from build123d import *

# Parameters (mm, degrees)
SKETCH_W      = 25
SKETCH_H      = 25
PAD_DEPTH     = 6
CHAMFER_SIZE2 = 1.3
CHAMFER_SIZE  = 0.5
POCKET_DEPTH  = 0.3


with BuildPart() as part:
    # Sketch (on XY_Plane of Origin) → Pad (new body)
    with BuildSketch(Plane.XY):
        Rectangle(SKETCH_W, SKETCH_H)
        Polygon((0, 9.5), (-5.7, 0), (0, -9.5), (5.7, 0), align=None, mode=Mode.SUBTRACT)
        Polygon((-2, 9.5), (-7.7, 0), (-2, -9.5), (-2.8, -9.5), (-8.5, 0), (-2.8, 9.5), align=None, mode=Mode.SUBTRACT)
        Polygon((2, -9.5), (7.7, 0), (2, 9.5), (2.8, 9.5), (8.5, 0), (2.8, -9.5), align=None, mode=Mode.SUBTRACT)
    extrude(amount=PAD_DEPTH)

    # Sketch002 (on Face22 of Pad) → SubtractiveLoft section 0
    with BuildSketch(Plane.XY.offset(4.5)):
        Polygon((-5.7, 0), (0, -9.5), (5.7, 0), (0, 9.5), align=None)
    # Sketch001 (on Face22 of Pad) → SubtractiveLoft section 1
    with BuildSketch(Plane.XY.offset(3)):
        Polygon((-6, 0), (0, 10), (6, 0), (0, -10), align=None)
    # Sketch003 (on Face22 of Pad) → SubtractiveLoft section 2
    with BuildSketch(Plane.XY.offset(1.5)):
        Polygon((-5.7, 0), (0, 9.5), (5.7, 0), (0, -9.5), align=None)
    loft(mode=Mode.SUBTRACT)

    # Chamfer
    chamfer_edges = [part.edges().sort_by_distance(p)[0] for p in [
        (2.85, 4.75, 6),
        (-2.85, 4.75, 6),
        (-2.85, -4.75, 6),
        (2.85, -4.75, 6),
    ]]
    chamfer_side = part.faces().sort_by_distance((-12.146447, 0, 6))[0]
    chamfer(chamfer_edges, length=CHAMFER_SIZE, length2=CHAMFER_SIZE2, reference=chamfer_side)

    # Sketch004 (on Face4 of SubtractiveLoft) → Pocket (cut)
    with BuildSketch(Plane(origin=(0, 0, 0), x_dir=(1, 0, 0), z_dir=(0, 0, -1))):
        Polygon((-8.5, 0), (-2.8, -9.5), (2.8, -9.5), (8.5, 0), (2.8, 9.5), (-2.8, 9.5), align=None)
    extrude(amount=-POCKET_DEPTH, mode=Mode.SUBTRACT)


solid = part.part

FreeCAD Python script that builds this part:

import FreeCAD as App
import Part
import Sketcher
from FreeCAD import Vector


def edges_at(feature, points):
    """Names of the edges that pass closest to the given points."""
    edges = feature.Shape.Edges
    near = lambda p: min(range(len(edges)), key=lambda i: edges[i].distToShape(Part.Vertex(*p))[0])
    return sorted({f"Edge{near(p) + 1}" for p in points})


def add_polygon(sketch, points):
    """Adds a closed chain of lines whose ends are joined by coincident constraints."""
    first, n = sketch.GeometryCount, len(points)
    for a, b in zip(points, points[1:] + points[:1]):
        sketch.addGeometry(Part.LineSegment(App.Vector(*a, 0), App.Vector(*b, 0)), False)
    for i in range(n):
        sketch.addConstraint(Sketcher.Constraint("Coincident", first + i, 2, first + (i + 1) % n, 1))

doc = App.newDocument("Part")
body = doc.addObject("PartDesign::Body", "Body")

# Sketch on XY plane
sketch1 = body.newObject("Sketcher::SketchObject", "Sketch")
sketch1.AttachmentSupport = (doc.getObject("XY_Plane"), [""])
sketch1.MapMode = "FlatFace"
add_polygon(sketch1, [(-12.5, 12.5), (-12.5, -12.5), (12.5, -12.5), (12.5, 12.5)])  # lines 0-3
add_polygon(sketch1, [(-2.8, 9.5), (-2, 9.5), (-7.7, 0), (-2, -9.5), (-2.8, -9.5), (-8.5, 0)])  # lines 4-9
add_polygon(sketch1, [(-5.7, 0), (0, 9.5), (5.7, 0), (0, -9.5)])  # lines 10-13
add_polygon(sketch1, [(2.8, -9.5), (2, -9.5), (7.7, 0), (2, 9.5), (2.8, 9.5), (8.5, 0)])  # lines 14-19
sketch1.addConstraint([
    Sketcher.Constraint("Vertical", 0),
    Sketcher.Constraint("Horizontal", 1),
    Sketcher.Constraint("Vertical", 2),
    Sketcher.Constraint("Horizontal", 3),
    Sketcher.Constraint("Horizontal", 4),
    Sketcher.Constraint("Horizontal", 7),
    Sketcher.Constraint("Horizontal", 14),
    Sketcher.Constraint("Horizontal", 17),
    Sketcher.Constraint("Symmetric", 0, 2, 2, 2, -1, 1),
    Sketcher.Constraint("Symmetric", 10, 2, 12, 2, -1, 1),
    Sketcher.Constraint("Symmetric", 11, 2, 13, 2, -1, 1),
    Sketcher.Constraint("Symmetric", 4, 2, 14, 2, -1, 1),
    Sketcher.Constraint("Symmetric", 5, 2, 15, 2, -1, 1),
    Sketcher.Constraint("Symmetric", 6, 2, 16, 2, -1, 1),
    Sketcher.Constraint("Symmetric", 8, 2, 18, 2, -1, 1),
    Sketcher.Constraint("Symmetric", 6, 2, 14, 2, -2),
    Sketcher.Constraint("PointOnObject", 5, 2, -1),
    Sketcher.Constraint("PointOnObject", 8, 2, -1),
    Sketcher.Constraint("PointOnObject", 10, 2, -2),
    Sketcher.Constraint("PointOnObject", 11, 2, -1),
    Sketcher.Constraint("Parallel", 6, 8),
    Sketcher.Constraint("Parallel", 5, 9),
    Sketcher.Constraint("Parallel", 9, 10),
    Sketcher.Constraint("Parallel", 16, 18),
    Sketcher.Constraint("Parallel", 15, 19),
    Sketcher.Constraint("Horizontal", 9, 2, 10, 2),
    Sketcher.Constraint("Equal", 3, 0),
    Sketcher.Constraint("DistanceX", 1, 1, 1, 2, 25.0),
    Sketcher.Constraint("DistanceX", 4, 1, 4, 2, 0.8),
    Sketcher.Constraint("DistanceX", 4, 2, -1, 1, 2.0),
    Sketcher.Constraint("DistanceY", 4, 2, 3, 2, 3.0),
    Sketcher.Constraint("DistanceX", 0, 2, 8, 2, 4.0),
])
pad1 = body.newObject("PartDesign::Pad", "Pad")
pad1.Profile = sketch1
pad1.Length = 6

# Sketch on XY plane
sketch2 = body.newObject("Sketcher::SketchObject", "Sketch001")
sketch2.AttachmentSupport = (doc.getObject("XY_Plane"), [""])
sketch2.MapMode = "FlatFace"
sketch2.AttachmentOffset = App.Placement(Vector(0, 0, 4.5), App.Rotation())
add_polygon(sketch2, [(-6, 0), (0, -10), (6, 0), (0, 10)])  # lines 0-3
sketch2.addConstraint([
    Sketcher.Constraint("Symmetric", 0, 2, 2, 2, -1, 1),
    Sketcher.Constraint("Symmetric", 1, 2, 3, 2, -1, 1),
    Sketcher.Constraint("PointOnObject", 0, 2, -2),
    Sketcher.Constraint("PointOnObject", 1, 2, -1),
    Sketcher.Constraint("DistanceY", 0, 2, 2, 2, 19.0),
    Sketcher.Constraint("DistanceX", -1, 1, 1, 2, 5.7),
])

# Sketch on XY plane
sketch3 = body.newObject("Sketcher::SketchObject", "Sketch002")
sketch3.AttachmentSupport = (doc.getObject("XY_Plane"), [""])
sketch3.MapMode = "FlatFace"
sketch3.AttachmentOffset = App.Placement(Vector(0, 0, 3), App.Rotation())
add_polygon(sketch3, [(0, 10), (-6, 0), (0, -10), (6, 0)])  # lines 0-3
sketch3.addConstraint([
    Sketcher.Constraint("Symmetric", 0, 2, 2, 2, -1, 1),
    Sketcher.Constraint("Symmetric", 1, 2, 3, 2, -1, 1),
    Sketcher.Constraint("PointOnObject", 0, 2, -1),
    Sketcher.Constraint("PointOnObject", 1, 2, -2),
    Sketcher.Constraint("DistanceX", 0, 2, -1, 1, 6.0),
    Sketcher.Constraint("DistanceY", 1, 2, -1, 1, 10.0),
])

# Sketch on XY plane
sketch4 = body.newObject("Sketcher::SketchObject", "Sketch003")
sketch4.AttachmentSupport = (doc.getObject("XY_Plane"), [""])
sketch4.MapMode = "FlatFace"
sketch4.AttachmentOffset = App.Placement(Vector(0, 0, 1.5), App.Rotation())
add_polygon(sketch4, [(0, 10), (-6, 0), (0, -10), (6, 0)])  # lines 0-3
sketch4.addConstraint([
    Sketcher.Constraint("Symmetric", 0, 2, 2, 2, -1, 1),
    Sketcher.Constraint("Symmetric", 1, 2, 3, 2, -1, 1),
    Sketcher.Constraint("PointOnObject", 0, 2, -1),
    Sketcher.Constraint("PointOnObject", 1, 2, -2),
    Sketcher.Constraint("DistanceY", 1, 2, 3, 2, 19.0),
    Sketcher.Constraint("DistanceX", 0, 2, -1, 1, 5.7),
])

subtractiveloft = body.newObject("PartDesign::SubtractiveLoft", "SubtractiveLoft")
subtractiveloft.Profile = sketch2
subtractiveloft.Sections = [sketch3, sketch4]
doc.recompute()

chamfer = body.newObject("PartDesign::Chamfer", "Chamfer")
chamfer.Base = (subtractiveloft, edges_at(subtractiveloft, [
    (2.85, 4.75, 6),
    (-2.85, 4.75, 6),
    (-2.85, -4.75, 6),
    (2.85, -4.75, 6),
]))
chamfer.ChamferType = "Two distances"
chamfer.Size = 0.5
chamfer.Size2 = 1.3

# Sketch on XY plane
sketch5 = body.newObject("Sketcher::SketchObject", "Sketch004")
sketch5.AttachmentSupport = (doc.getObject("XY_Plane"), [""])
sketch5.MapMode = "FlatFace"
add_polygon(sketch5, [(-8, 0), (-3, 10), (3, 10), (8, 0), (3, -10), (-3, -10)])  # lines 0-5
sketch5.addConstraint([
    Sketcher.Constraint("Horizontal", 1),
    Sketcher.Constraint("Horizontal", 4),
    Sketcher.Constraint("Symmetric", 0, 2, 3, 2, -1, 1),
    Sketcher.Constraint("Symmetric", 2, 2, 5, 2, -1, 1),
    Sketcher.Constraint("PointOnObject", 2, 2, -1),
    Sketcher.Constraint("Parallel", 2, 5),
    Sketcher.Constraint("Vertical", 1, 2, 3, 2),
    Sketcher.Constraint("DistanceX", 1, 1, 1, 2, 5.6),
    Sketcher.Constraint("DistanceY", 3, 2, 1, 2, 19.0),
    Sketcher.Constraint("DistanceX", 5, 2, 2, 2, 17.0),
])
pocket1 = body.newObject("PartDesign::Pocket", "Pocket")
pocket1.Profile = sketch5
pocket1.Length = 0.3
pocket1.Reversed = True

doc.recompute()
